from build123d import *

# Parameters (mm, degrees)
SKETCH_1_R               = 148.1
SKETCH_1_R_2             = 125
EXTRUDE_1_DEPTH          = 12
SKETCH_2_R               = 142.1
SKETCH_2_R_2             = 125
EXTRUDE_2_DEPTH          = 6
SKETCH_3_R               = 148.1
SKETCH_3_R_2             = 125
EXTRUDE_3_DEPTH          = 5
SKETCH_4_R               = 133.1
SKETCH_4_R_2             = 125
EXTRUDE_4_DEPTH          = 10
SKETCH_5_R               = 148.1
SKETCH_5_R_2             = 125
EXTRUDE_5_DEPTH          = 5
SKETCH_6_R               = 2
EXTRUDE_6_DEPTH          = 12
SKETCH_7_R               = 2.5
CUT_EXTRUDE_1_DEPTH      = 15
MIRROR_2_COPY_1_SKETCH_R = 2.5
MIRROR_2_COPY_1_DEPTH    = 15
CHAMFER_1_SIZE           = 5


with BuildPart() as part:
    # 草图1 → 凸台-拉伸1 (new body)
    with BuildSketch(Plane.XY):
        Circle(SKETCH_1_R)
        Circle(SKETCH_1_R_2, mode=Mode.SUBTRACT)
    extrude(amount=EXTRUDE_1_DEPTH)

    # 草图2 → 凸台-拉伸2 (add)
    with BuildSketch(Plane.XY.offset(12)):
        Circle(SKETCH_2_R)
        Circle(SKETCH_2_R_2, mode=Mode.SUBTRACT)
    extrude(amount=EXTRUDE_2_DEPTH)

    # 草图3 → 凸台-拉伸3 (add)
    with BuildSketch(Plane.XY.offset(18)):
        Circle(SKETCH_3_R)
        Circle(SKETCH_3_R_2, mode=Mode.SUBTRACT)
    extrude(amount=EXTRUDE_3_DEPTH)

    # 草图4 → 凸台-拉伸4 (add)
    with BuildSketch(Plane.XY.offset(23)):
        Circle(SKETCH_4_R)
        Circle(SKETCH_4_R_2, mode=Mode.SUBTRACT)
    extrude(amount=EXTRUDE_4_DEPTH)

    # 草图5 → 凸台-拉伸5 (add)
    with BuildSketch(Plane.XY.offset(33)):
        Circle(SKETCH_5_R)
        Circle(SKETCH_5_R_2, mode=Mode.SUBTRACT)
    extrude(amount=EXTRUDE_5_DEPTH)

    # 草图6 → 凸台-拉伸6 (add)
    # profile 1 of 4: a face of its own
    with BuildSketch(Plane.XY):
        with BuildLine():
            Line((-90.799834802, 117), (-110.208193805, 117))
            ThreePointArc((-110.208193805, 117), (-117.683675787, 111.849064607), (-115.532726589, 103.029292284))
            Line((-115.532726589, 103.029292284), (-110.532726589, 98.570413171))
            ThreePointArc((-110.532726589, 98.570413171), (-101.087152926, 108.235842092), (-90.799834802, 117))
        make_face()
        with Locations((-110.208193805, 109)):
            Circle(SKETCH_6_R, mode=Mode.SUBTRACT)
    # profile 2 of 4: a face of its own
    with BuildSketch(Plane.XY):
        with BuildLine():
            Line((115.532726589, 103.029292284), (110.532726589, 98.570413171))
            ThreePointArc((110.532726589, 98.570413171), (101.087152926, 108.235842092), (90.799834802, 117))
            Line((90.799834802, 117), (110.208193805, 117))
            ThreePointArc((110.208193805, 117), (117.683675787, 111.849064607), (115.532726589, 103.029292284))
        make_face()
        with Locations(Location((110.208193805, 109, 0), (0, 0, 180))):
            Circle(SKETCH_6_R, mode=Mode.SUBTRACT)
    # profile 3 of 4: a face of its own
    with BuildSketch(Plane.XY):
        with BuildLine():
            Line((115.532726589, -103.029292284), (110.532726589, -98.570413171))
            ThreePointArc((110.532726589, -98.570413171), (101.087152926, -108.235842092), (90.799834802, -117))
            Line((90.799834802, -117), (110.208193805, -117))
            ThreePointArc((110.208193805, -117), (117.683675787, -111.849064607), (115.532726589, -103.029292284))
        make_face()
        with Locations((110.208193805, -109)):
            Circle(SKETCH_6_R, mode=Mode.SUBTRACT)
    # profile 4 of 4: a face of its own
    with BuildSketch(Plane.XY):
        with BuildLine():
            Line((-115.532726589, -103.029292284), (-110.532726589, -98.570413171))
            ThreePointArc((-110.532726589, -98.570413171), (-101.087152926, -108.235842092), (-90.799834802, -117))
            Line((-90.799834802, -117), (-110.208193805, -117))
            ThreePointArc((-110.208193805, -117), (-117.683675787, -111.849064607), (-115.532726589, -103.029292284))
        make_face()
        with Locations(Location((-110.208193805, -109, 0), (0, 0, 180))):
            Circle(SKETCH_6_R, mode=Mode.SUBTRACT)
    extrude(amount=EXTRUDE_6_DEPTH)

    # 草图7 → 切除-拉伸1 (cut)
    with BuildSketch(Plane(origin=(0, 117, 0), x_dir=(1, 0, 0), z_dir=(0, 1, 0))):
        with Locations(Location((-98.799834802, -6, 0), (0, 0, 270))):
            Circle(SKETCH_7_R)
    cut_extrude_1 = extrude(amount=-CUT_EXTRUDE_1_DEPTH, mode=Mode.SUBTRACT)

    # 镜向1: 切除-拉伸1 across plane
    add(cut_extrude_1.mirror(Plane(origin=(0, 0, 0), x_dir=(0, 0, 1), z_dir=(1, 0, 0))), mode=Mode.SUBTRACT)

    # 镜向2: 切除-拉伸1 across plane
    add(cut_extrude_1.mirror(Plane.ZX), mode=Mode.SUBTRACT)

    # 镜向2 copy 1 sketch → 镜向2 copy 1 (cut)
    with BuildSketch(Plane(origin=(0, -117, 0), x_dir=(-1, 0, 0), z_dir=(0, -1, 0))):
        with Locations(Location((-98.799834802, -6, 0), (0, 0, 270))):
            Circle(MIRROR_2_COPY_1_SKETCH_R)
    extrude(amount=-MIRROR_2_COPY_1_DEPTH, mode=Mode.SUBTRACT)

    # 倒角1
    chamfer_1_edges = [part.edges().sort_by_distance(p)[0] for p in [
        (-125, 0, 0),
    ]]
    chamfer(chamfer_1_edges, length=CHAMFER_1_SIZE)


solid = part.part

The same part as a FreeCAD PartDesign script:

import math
import FreeCAD as App
import Part
import Sketcher


def edges_at(feature, points):
    """Names of the edges that pass closest to the given points."""
    edges = feature.Shape.Edges
    near = lambda p: min(range(len(edges)), key=lambda i: edges[i].distToShape(Part.Vertex(*p))[0])
    return sorted({f"Edge{near(p) + 1}" for p in points})

doc = App.newDocument("Part")
params = doc.addObject("Spreadsheet::Sheet", "Params")
for row, (alias, value) in enumerate([
    ("sketch1_diameter", "250 mm"),
    ("sketch1_diameter2", "296.2 mm"),
    ("pad1_length", "12 mm"),
    ("sketch2_diameter", "250 mm"),
    ("sketch2_diameter2", "284.2 mm"),
    ("pad2_length", "6 mm"),
    ("sketch3_diameter", "250 mm"),
    ("sketch3_diameter2", "296.2 mm"),
    ("pad3_length", "5 mm"),
    ("sketch4_diameter", "250 mm"),
    ("sketch4_diameter2", "266.2 mm"),
    ("pad4_length", "10 mm"),
    ("sketch5_diameter", "250 mm"),
    ("sketch5_diameter2", "296.2 mm"),
    ("pad5_length", "5 mm"),
    ("sketch6_diameter", "4 mm"),
    ("sketch6_radius", "8 mm"),
    ("sketch6_radius2", "148.1 mm"),
    ("pad6_length", "12 mm"),
    ("sketch7_diameter", "5 mm"),
    ("pocket1_length", "15 mm"),
    ("sketch8_diameter", "5 mm"),
    ("pocket2_length", "15 mm"),
    ("chamfer_size", "5 mm"),
], start=1):
    params.set(f"A{row}", alias)
    params.set(f"B{row}", "=" + value)
    params.setAlias(f"B{row}", alias)

body = doc.addObject("PartDesign::Body", "Body")

sketch1 = body.newObject("Sketcher::SketchObject", "Sketch")
sketch1.AttachmentSupport = (doc.getObject("XY_Plane"), [""])
sketch1.MapMode = "FlatFace"
sketch1.addGeometry(Part.Circle(App.Vector(0, 0, 0), App.Vector(0, 0, 1), 148), False)
sketch1.addGeometry(Part.Circle(App.Vector(0, 0, 0), App.Vector(0, 0, 1), 125), False)
sketch1.addConstraint(Sketcher.Constraint("Coincident", 0, 3, -1, 1))
sketch1.addConstraint(Sketcher.Constraint("Coincident", 1, 3, -1, 1))
sketch1.addConstraint(Sketcher.Constraint("Diameter", 1, 250.0))
sketch1.addConstraint(Sketcher.Constraint("Diameter", 0, 296.2))
sketch1.setExpression("Constraints[2]", "Params.sketch1_diameter")
sketch1.setExpression("Constraints[3]", "Params.sketch1_diameter2")
pad1 = body.newObject("PartDesign::Pad", "Pad")
pad1.Profile = sketch1
pad1.setExpression("Length", "Params.pad1_length")

sketch2 = body.newObject("Sketcher::SketchObject", "Sketch001")
sketch2.AttachmentSupport = (doc.getObject("XY_Plane"), [""])
sketch2.MapMode = "FlatFace"
sketch2.AttachmentOffset = App.Placement(App.Vector(0, 0, 12), App.Rotation())
sketch2.addGeometry(Part.Circle(App.Vector(0, 0, 0), App.Vector(0, 0, 1), 142), False)
sketch2.addGeometry(Part.Circle(App.Vector(0, 0, 0), App.Vector(0, 0, 1), 125), False)
sketch2.addConstraint(Sketcher.Constraint("Coincident", 0, 3, -1, 1))
sketch2.addConstraint(Sketcher.Constraint("Coincident", 1, 3, -1, 1))
sketch2.addConstraint(Sketcher.Constraint("Diameter", 1, 250.0))
sketch2.addConstraint(Sketcher.Constraint("Diameter", 0, 284.2))
sketch2.setExpression("Constraints[2]", "Params.sketch2_diameter")
sketch2.setExpression("Constraints[3]", "Params.sketch2_diameter2")
pad2 = body.newObject("PartDesign::Pad", "Pad001")
pad2.Profile = sketch2
pad2.setExpression("Length", "Params.pad2_length")

sketch3 = body.newObject("Sketcher::SketchObject", "Sketch002")
sketch3.AttachmentSupport = (doc.getObject("XY_Plane"), [""])
sketch3.MapMode = "FlatFace"
sketch3.AttachmentOffset = App.Placement(App.Vector(0, 0, 18), App.Rotation())
sketch3.addGeometry(Part.Circle(App.Vector(0, 0, 0), App.Vector(0, 0, 1), 148), False)
sketch3.addGeometry(Part.Circle(App.Vector(0, 0, 0), App.Vector(0, 0, 1), 125), False)
sketch3.addConstraint(Sketcher.Constraint("Coincident", 0, 3, -1, 1))
sketch3.addConstraint(Sketcher.Constraint("Coincident", 1, 3, -1, 1))
sketch3.addConstraint(Sketcher.Constraint("Diameter", 1, 250.0))
sketch3.addConstraint(Sketcher.Constraint("Diameter", 0, 296.2))
sketch3.setExpression("Constraints[2]", "Params.sketch3_diameter")
sketch3.setExpression("Constraints[3]", "Params.sketch3_diameter2")
pad3 = body.newObject("PartDesign::Pad", "Pad002")
pad3.Profile = sketch3
pad3.setExpression("Length", "Params.pad3_length")

sketch4 = body.newObject("Sketcher::SketchObject", "Sketch003")
sketch4.AttachmentSupport = (doc.getObject("XY_Plane"), [""])
sketch4.MapMode = "FlatFace"
sketch4.AttachmentOffset = App.Placement(App.Vector(0, 0, 23), App.Rotation())
sketch4.addGeometry(Part.Circle(App.Vector(0, 0, 0), App.Vector(0, 0, 1), 133), False)
sketch4.addGeometry(Part.Circle(App.Vector(0, 0, 0), App.Vector(0, 0, 1), 125), False)
sketch4.addConstraint(Sketcher.Constraint("Coincident", 0, 3, -1, 1))
sketch4.addConstraint(Sketcher.Constraint("Coincident", 1, 3, -1, 1))
sketch4.addConstraint(Sketcher.Constraint("Diameter", 1, 250.0))
sketch4.addConstraint(Sketcher.Constraint("Diameter", 0, 266.2))
sketch4.setExpression("Constraints[2]", "Params.sketch4_diameter")
sketch4.setExpression("Constraints[3]", "Params.sketch4_diameter2")
pad4 = body.newObject("PartDesign::Pad", "Pad003")
pad4.Profile = sketch4
pad4.setExpression("Length", "Params.pad4_length")

sketch5 = body.newObject("Sketcher::SketchObject", "Sketch004")
sketch5.AttachmentSupport = (doc.getObject("XY_Plane"), [""])
sketch5.MapMode = "FlatFace"
sketch5.AttachmentOffset = App.Placement(App.Vector(0, 0, 33), App.Rotation())
sketch5.addGeometry(Part.Circle(App.Vector(0, 0, 0), App.Vector(0, 0, 1), 148), False)
sketch5.addGeometry(Part.Circle(App.Vector(0, 0, 0), App.Vector(0, 0, 1), 125), False)
sketch5.addConstraint(Sketcher.Constraint("Coincident", 0, 3, -1, 1))
sketch5.addConstraint(Sketcher.Constraint("Coincident", 1, 3, -1, 1))
sketch5.addConstraint(Sketcher.Constraint("Diameter", 1, 250.0))
sketch5.addConstraint(Sketcher.Constraint("Diameter", 0, 296.2))
sketch5.setExpression("Constraints[2]", "Params.sketch5_diameter")
sketch5.setExpression("Constraints[3]", "Params.sketch5_diameter2")
pad5 = body.newObject("PartDesign::Pad", "Pad004")
pad5.Profile = sketch5
pad5.setExpression("Length", "Params.pad5_length")

sketch6 = body.newObject("Sketcher::SketchObject", "Sketch005")
sketch6.AttachmentSupport = (doc.getObject("XY_Plane"), [""])
sketch6.MapMode = "FlatFace"
sketch6.addGeometry(Part.LineSegment(App.Vector(-90.8, 117, 0), App.Vector(-110.2, 117, 0)), False)
sketch6.addGeometry(Part.ArcOfCircle(Part.Circle(App.Vector(-110.2, 109, 0), App.Vector(0, 0, 1), 8), math.radians(90), math.radians(228)), False)
sketch6.addGeometry(Part.LineSegment(App.Vector(-115.5, 103, 0), App.Vector(-110.5, 98.6, 0)), False)
sketch6.addGeometry(Part.ArcOfCircle(Part.Circle(App.Vector(0, 0, 0), App.Vector(0, 0, 1), 148.1), math.radians(127.81), math.radians(138.27)), False)
sketch6.addGeometry(Part.Circle(App.Vector(-110.2, 109, 0), App.Vector(0, 0, 1), 2), False)
sketch6.addGeometry(Part.LineSegment(App.Vector(110.5, 98.6, 0), App.Vector(115.5, 103, 0)), False)
sketch6.addGeometry(Part.ArcOfCircle(Part.Circle(App.Vector(110.2, 109, 0), App.Vector(0, 0, 1), 8), math.radians(-48), math.radians(90)), False)
sketch6.addGeometry(Part.LineSegment(App.Vector(110.2, 117, 0), App.Vector(90.8, 117, 0)), False)
sketch6.addGeometry(Part.ArcOfCircle(Part.Circle(App.Vector(0, 0, 0), App.Vector(0, 0, 1), 148.1), math.radians(41.73), math.radians(52.19)), False)
sketch6.addGeometry(Part.Circle(App.Vector(110.2, 109, 0), App.Vector(0, 0, 1), 2), False)
sketch6.addGeometry(Part.LineSegment(App.Vector(115.5, -103, 0), App.Vector(110.5, -98.6, 0)), False)
sketch6.addGeometry(Part.ArcOfCircle(Part.Circle(App.Vector(0, 0, 0), App.Vector(0, 0, 1), 148.1), math.radians(-52.19), math.radians(-41.73)), False)
sketch6.addGeometry(Part.LineSegment(App.Vector(90.8, -117, 0), App.Vector(110.2, -117, 0)), False)
sketch6.addGeometry(Part.ArcOfCircle(Part.Circle(App.Vector(110.2, -109, 0), App.Vector(0, 0, 1), 8), math.radians(-90), math.radians(48)), False)
sketch6.addGeometry(Part.Circle(App.Vector(110.2, -109, 0), App.Vector(0, 0, 1), 2), False)
sketch6.addGeometry(Part.LineSegment(App.Vector(-110.5, -98.6, 0), App.Vector(-115.5, -103, 0)), False)
sketch6.addGeometry(Part.ArcOfCircle(Part.Circle(App.Vector(-110.2, -109, 0), App.Vector(0, 0, 1), 8), math.radians(132), math.radians(270)), False)
sketch6.addGeometry(Part.LineSegment(App.Vector(-110.2, -117, 0), App.Vector(-90.8, -117, 0)), False)
sketch6.addGeometry(Part.ArcOfCircle(Part.Circle(App.Vector(0, 0, 0), App.Vector(0, 0, 1), 148.1), math.radians(-138.27), math.radians(-127.81)), False)
sketch6.addGeometry(Part.Circle(App.Vector(-110.2, -109, 0), App.Vector(0, 0, 1), 2), False)
sketch6.addConstraint(Sketcher.Constraint("Tangent", 0, 2, 1, 1))
sketch6.addConstraint(Sketcher.Constraint("Tangent", 1, 2, 2, 1))
sketch6.addConstraint(Sketcher.Constraint("Coincident", 2, 2, 3, 2))
sketch6.addConstraint(Sketcher.Constraint("Coincident", 3, 1, 0, 1))
sketch6.addConstraint(Sketcher.Constraint("Tangent", 5, 2, 6, 1))
sketch6.addConstraint(Sketcher.Constraint("Tangent", 6, 2, 7, 1))
sketch6.addConstraint(Sketcher.Constraint("Coincident", 7, 2, 8, 2))
sketch6.addConstraint(Sketcher.Constraint("Coincident", 8, 1, 5, 1))
sketch6.addConstraint(Sketcher.Constraint("Coincident", 10, 2, 11, 2))
sketch6.addConstraint(Sketcher.Constraint("Coincident", 11, 1, 12, 1))
sketch6.addConstraint(Sketcher.Constraint("Tangent", 12, 2, 13, 1))
sketch6.addConstraint(Sketcher.Constraint("Tangent", 13, 2, 10, 1))
sketch6.addConstraint(Sketcher.Constraint("Tangent", 15, 2, 16, 1))
sketch6.addConstraint(Sketcher.Constraint("Tangent", 16, 2, 17, 1))
sketch6.addConstraint(Sketcher.Constraint("Coincident", 17, 2, 18, 2))
sketch6.addConstraint(Sketcher.Constraint("Coincident", 18, 1, 15, 1))
sketch6.addConstraint(Sketcher.Constraint("Horizontal", 0))
sketch6.addConstraint(Sketcher.Constraint("Horizontal", 7))
sketch6.addConstraint(Sketcher.Constraint("Horizontal", 12))
sketch6.addConstraint(Sketcher.Constraint("Horizontal", 17))
sketch6.addConstraint(Sketcher.Constraint("Coincident", 3, 3, -1, 1))
sketch6.addConstraint(Sketcher.Constraint("Coincident", 8, 3, -1, 1))
sketch6.addConstraint(Sketcher.Constraint("Coincident", 11, 3, -1, 1))
sketch6.addConstraint(Sketcher.Constraint("Coincident", 18, 3, -1, 1))
sketch6.addConstraint(Sketcher.Constraint("Coincident", 4, 3, 1, 3))
sketch6.addConstraint(Sketcher.Constraint("Coincident", 9, 3, 6, 3))
sketch6.addConstraint(Sketcher.Constraint("Coincident", 14, 3, 13, 3))
sketch6.addConstraint(Sketcher.Constraint("Coincident", 19, 3, 16, 3))
sketch6.addConstraint(Sketcher.Constraint("Equal", 1, 6))
sketch6.addConstraint(Sketcher.Constraint("Equal", 3, 8))
sketch6.addConstraint(Sketcher.Constraint("Equal", 4, 9))
sketch6.addConstraint(Sketcher.Constraint("Equal", 8, 11))
sketch6.addConstraint(Sketcher.Constraint("Equal", 6, 13))
sketch6.addConstraint(Sketcher.Constraint("Equal", 9, 14))
sketch6.addConstraint(Sketcher.Constraint("Equal", 13, 16))
sketch6.addConstraint(Sketcher.Constraint("Equal", 11, 18))
sketch6.addConstraint(Sketcher.Constraint("Equal", 14, 19))
sketch6.addConstraint(Sketcher.Constraint("Symmetric", 1, 3, 13, 3, -1, 1))
sketch6.addConstraint(Sketcher.Constraint("Symmetric", 6, 3, 16, 3, -1, 1))
sketch6.addConstraint(Sketcher.Constraint("Symmetric", 1, 3, 6, 3, -2))
sketch6.addConstraint(Sketcher.Constraint("Parallel", 2, 10))
sketch6.addConstraint(Sketcher.Constraint("Parallel", 5, 15))
sketch6.addConstraint(Sketcher.Constraint("Horizontal", 1, 2, 5, 2))
sketch6.addConstraint(Sketcher.Constraint("Diameter", 4, 4.0))
sketch6.addConstraint(Sketcher.Constraint("Radius", 1, 8.0))
sketch6.addConstraint(Sketcher.Constraint("Radius", 3, 148.1))
sketch6.addConstraint(Sketcher.Constraint("DistanceY", -1, 1, 1, 3, 109.0))
sketch6.addConstraint(Sketcher.Constraint("DistanceX", 1, 2, 2, 2, 5.0))
sketch6.addConstraint(Sketcher.Constraint("DistanceX", 0, 2, 0, 1, 19.408359))
sketch6.setExpression("Constraints[43]", "Params.sketch6_diameter")
sketch6.setExpression("Constraints[44]", "Params.sketch6_radius")
sketch6.setExpression("Constraints[45]", "Params.sketch6_radius2")
pad6 = body.newObject("PartDesign::Pad", "Pad005")
pad6.Profile = sketch6
pad6.setExpression("Length", "Params.pad6_length")

sketch7 = body.newObject("Sketcher::SketchObject", "Sketch006")
sketch7.AttachmentSupport = (doc.getObject("XZ_Plane"), [""])
sketch7.MapMode = "FlatFace"
sketch7.AttachmentOffset = App.Placement(App.Vector(0, 0, -117), App.Rotation())
sketch7.addGeometry(Part.Circle(App.Vector(-98.8, 6, 0), App.Vector(0, 0, 1), 2.5), False)
sketch7.addConstraint(Sketcher.Constraint("Diameter", 0, 5.0))
sketch7.addConstraint(Sketcher.Constraint("DistanceY", -1, 1, 0, 3, 6.0))
sketch7.addConstraint(Sketcher.Constraint("DistanceX", 0, 3, -1, 1, 98.799835))
sketch7.setExpression("Constraints[0]", "Params.sketch7_diameter")
pocket1 = body.newObject("PartDesign::Pocket", "Pocket")
pocket1.Profile = sketch7
pocket1.setExpression("Length", "Params.pocket1_length")
pocket1.Reversed = True
doc.recompute()

mirrored = body.newObject("PartDesign::Mirrored", "Mirrored")
mirrored.Originals = [pocket1]
mirrored.MirrorPlane = (doc.getObject("YZ_Plane"), [""])
body.Tip = mirrored
doc.recompute()

mirrored2 = body.newObject("PartDesign::Mirrored", "Mirrored001")
mirrored2.Originals = [pocket1]
mirrored2.MirrorPlane = (doc.getObject("XZ_Plane"), [""])
body.Tip = mirrored2

sketch8 = body.newObject("Sketcher::SketchObject", "Sketch007")
sketch8.AttachmentSupport = (doc.getObject("XZ_Plane"), [""])
sketch8.MapMode = "FlatFace"
sketch8.AttachmentOffset = App.Placement(App.Vector(0, 0, 117), App.Rotation())
sketch8.addGeometry(Part.Circle(App.Vector(98.8, 6, 0), App.Vector(0, 0, 1), 2.5), False)
sketch8.addConstraint(Sketcher.Constraint("Diameter", 0, 5.0))
sketch8.addConstraint(Sketcher.Constraint("DistanceY", -1, 1, 0, 3, 6.0))
sketch8.addConstraint(Sketcher.Constraint("DistanceX", -1, 1, 0, 3, 98.799835))
sketch8.setExpression("Constraints[0]", "Params.sketch8_diameter")
pocket2 = body.newObject("PartDesign::Pocket", "Pocket001")
pocket2.Profile = sketch8
pocket2.setExpression("Length", "Params.pocket2_length")
doc.recompute()

chamfer = body.newObject("PartDesign::Chamfer", "Chamfer")
chamfer.Base = (pocket2, edges_at(pocket2, [(-125, 0, 0)]))
chamfer.setExpression("Size", "Params.chamfer_size")

doc.recompute()
